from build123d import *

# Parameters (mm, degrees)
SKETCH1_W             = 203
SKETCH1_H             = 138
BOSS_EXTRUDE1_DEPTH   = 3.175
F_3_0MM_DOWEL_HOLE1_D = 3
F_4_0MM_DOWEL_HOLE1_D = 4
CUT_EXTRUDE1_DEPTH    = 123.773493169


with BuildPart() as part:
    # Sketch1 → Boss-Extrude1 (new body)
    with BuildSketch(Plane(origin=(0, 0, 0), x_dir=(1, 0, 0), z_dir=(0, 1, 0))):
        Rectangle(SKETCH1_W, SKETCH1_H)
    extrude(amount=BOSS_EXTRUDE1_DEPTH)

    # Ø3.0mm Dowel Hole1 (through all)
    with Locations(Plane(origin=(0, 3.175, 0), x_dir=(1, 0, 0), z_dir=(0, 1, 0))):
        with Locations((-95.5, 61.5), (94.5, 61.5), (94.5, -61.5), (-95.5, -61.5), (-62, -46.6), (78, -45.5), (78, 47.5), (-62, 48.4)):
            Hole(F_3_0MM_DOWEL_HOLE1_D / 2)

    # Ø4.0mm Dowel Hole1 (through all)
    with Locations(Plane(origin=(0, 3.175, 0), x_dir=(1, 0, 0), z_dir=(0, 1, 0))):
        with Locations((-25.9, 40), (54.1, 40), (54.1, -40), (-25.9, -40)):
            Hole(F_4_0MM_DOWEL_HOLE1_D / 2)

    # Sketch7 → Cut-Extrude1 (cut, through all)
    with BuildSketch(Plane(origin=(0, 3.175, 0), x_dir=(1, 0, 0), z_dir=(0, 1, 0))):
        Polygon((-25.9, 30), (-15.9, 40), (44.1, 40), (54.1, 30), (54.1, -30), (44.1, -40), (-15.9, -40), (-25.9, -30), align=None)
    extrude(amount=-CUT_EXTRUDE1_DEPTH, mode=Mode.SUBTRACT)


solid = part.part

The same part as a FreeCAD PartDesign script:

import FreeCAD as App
import Part
import Sketcher
from FreeCAD import Vector
Q = App.Units.Quantity


def add_polygon(sketch, points):
    """Adds a closed chain of lines whose ends are joined by coincident constraints."""
    first, n = sketch.GeometryCount, len(points)
    for a, b in zip(points, points[1:] + points[:1]):
        sketch.addGeometry(Part.LineSegment(App.Vector(*a, 0), App.Vector(*b, 0)), False)
    for i in range(n):
        sketch.addConstraint(Sketcher.Constraint("Coincident", first + i, 2, first + (i + 1) % n, 1))

doc = App.newDocument("Part")
body = doc.addObject("PartDesign::Body", "Body")

sketch1 = doc.addObject("Sketcher::SketchObject", "Sketch")
body.addObject(sketch1)
sketch1.AttachmentSupport = (doc.XZ_Plane, [""])
sketch1.MapMode = "FlatFace"
add_polygon(sketch1, [(-102, -69), (-102, 69), (102, 69), (102, -69)])
sketch1.addConstraint(Sketcher.Constraint("Vertical", 0))
sketch1.addConstraint(Sketcher.Constraint("Horizontal", 1))
sketch1.addConstraint(Sketcher.Constraint("Vertical", 2))
sketch1.addConstraint(Sketcher.Constraint("Horizontal", 3))
sketch1.addConstraint(Sketcher.Constraint("Symmetric", 0, 2, 2, 2, -1, 1))
sketch1.addConstraint(Sketcher.Constraint("DistanceX", 1, 1, 1, 2, Q("203 mm")))
sketch1.addConstraint(Sketcher.Constraint("DistanceY", 0, 1, 0, 2, Q("138 mm")))
pad1 = doc.addObject("PartDesign::Pad", "Pad")
body.addObject(pad1)
pad1.Profile = sketch1
pad1.Length = 3.175
pad1.Reversed = True

sketch2 = doc.addObject("Sketcher::SketchObject", "Sketch001")
body.addObject(sketch2)
sketch2.AttachmentSupport = (doc.XZ_Plane, [""])
sketch2.MapMode = "FlatFace"
sketch2.AttachmentOffset = App.Placement(Vector(0, 0, -3.175), App.Rotation())
sketch2.addGeometry(Part.Circle(Vector(-95.5, -61.5, 0), Vector(0, 0, 1), 1.5), False)
sketch2.addGeometry(Part.Circle(Vector(94.5, -61.5, 0), Vector(0, 0, 1), 1.5), False)
sketch2.addGeometry(Part.Circle(Vector(94.5, 61.5, 0), Vector(0, 0, 1), 1.5), False)
sketch2.addGeometry(Part.Circle(Vector(-95.5, 61.5, 0), Vector(0, 0, 1), 1.5), False)
sketch2.addGeometry(Part.Circle(Vector(-62, 46.6, 0), Vector(0, 0, 1), 1.5), False)
sketch2.addGeometry(Part.Circle(Vector(78, 45.5, 0), Vector(0, 0, 1), 1.5), False)
sketch2.addGeometry(Part.Circle(Vector(78, -47.5, 0), Vector(0, 0, 1), 1.5), False)
sketch2.addGeometry(Part.Circle(Vector(-62, -48.4, 0), Vector(0, 0, 1), 1.5), False)
sketch2.addConstraint(Sketcher.Constraint("Equal", 0, 1))
sketch2.addConstraint(Sketcher.Constraint("Equal", 1, 2))
sketch2.addConstraint(Sketcher.Constraint("Equal", 2, 3))
sketch2.addConstraint(Sketcher.Constraint("Equal", 3, 4))
sketch2.addConstraint(Sketcher.Constraint("Equal", 4, 5))
sketch2.addConstraint(Sketcher.Constraint("Equal", 5, 6))
sketch2.addConstraint(Sketcher.Constraint("Equal", 6, 7))
sketch2.addConstraint(Sketcher.Constraint("Symmetric", 1, 3, 2, 3, -1))
sketch2.addConstraint(Sketcher.Constraint("Symmetric", 0, 3, 3, 3, -1))
sketch2.addConstraint(Sketcher.Constraint("Horizontal", 0, 3, 1, 3))
sketch2.addConstraint(Sketcher.Constraint("Vertical", 5, 3, 6, 3))
sketch2.addConstraint(Sketcher.Constraint("Vertical", 4, 3, 7, 3))
sketch2.addConstraint(Sketcher.Constraint("Diameter", 0, Q("3 mm")))
sketch2.addConstraint(Sketcher.Constraint("DistanceX", 4, 3, -1, 1, Q("62 mm")))
sketch2.addConstraint(Sketcher.Constraint("DistanceX", -1, 1, 5, 3, Q("78 mm")))
sketch2.addConstraint(Sketcher.Constraint("DistanceX", 0, 3, 1, 3, Q("190 mm")))
sketch2.addConstraint(Sketcher.Constraint("DistanceY", 1, 3, 2, 3, Q("123 mm")))
sketch2.addConstraint(Sketcher.Constraint("DistanceY", 5, 3, 2, 3, Q("16 mm")))
sketch2.addConstraint(Sketcher.Constraint("DistanceY", 1, 3, 6, 3, Q("14 mm")))
sketch2.addConstraint(Sketcher.Constraint("DistanceY", 7, 3, 4, 3, Q("95 mm")))
sketch2.addConstraint(Sketcher.Constraint("DistanceX", 0, 3, -1, 1, Q("95.5 mm")))
sketch2.addConstraint(Sketcher.Constraint("DistanceY", -1, 1, 4, 3, Q("46.6 mm")))
doc.recompute()
hole = doc.addObject("PartDesign::Hole", "Hole")
body.addObject(hole)
hole.Profile = sketch2
hole.ThreadType = "None"
hole.Diameter = 3
hole.DepthType = "ThroughAll"
hole.Reversed = True

sketch3 = doc.addObject("Sketcher::SketchObject", "Sketch002")
body.addObject(sketch3)
sketch3.AttachmentSupport = (doc.XZ_Plane, [""])
sketch3.MapMode = "FlatFace"
sketch3.AttachmentOffset = App.Placement(Vector(0, 0, -3.175), App.Rotation())
sketch3.addGeometry(Part.Circle(Vector(-25.9, -40, 0), Vector(0, 0, 1), 2), False)
sketch3.addGeometry(Part.Circle(Vector(54.1, -40, 0), Vector(0, 0, 1), 2), False)
sketch3.addGeometry(Part.Circle(Vector(54.1, 40, 0), Vector(0, 0, 1), 2), False)
sketch3.addGeometry(Part.Circle(Vector(-25.9, 40, 0), Vector(0, 0, 1), 2), False)
sketch3.addConstraint(Sketcher.Constraint("Equal", 0, 1))
sketch3.addConstraint(Sketcher.Constraint("Equal", 1, 2))
sketch3.addConstraint(Sketcher.Constraint("Equal", 2, 3))
sketch3.addConstraint(Sketcher.Constraint("Symmetric", 1, 3, 2, 3, -1))
sketch3.addConstraint(Sketcher.Constraint("Symmetric", 0, 3, 3, 3, -1))
sketch3.addConstraint(Sketcher.Constraint("Horizontal", 0, 3, 1, 3))
sketch3.addConstraint(Sketcher.Constraint("Diameter", 0, Q("4 mm")))
sketch3.addConstraint(Sketcher.Constraint("DistanceY", 0, 3, -1, 1, Q("40 mm")))
sketch3.addConstraint(Sketcher.Constraint("DistanceX", 0, 3, 1, 3, Q("80 mm")))
sketch3.addConstraint(Sketcher.Constraint("DistanceX", 0, 3, -1, 1, Q("25.9 mm")))
doc.recompute()
hole2 = doc.addObject("PartDesign::Hole", "Hole001")
body.addObject(hole2)
hole2.Profile = sketch3
hole2.ThreadType = "None"
hole2.Diameter = 4
hole2.DepthType = "ThroughAll"
hole2.Reversed = True

sketch4 = doc.addObject("Sketcher::SketchObject", "Sketch003")
body.addObject(sketch4)
sketch4.AttachmentSupport = (doc.XZ_Plane, [""])
sketch4.MapMode = "FlatFace"
sketch4.AttachmentOffset = App.Placement(Vector(0, 0, -3.175), App.Rotation())
add_polygon(sketch4, [(-16, -40), (-26, -30), (-26, 30), (-16, 40), (44, 40), (54, 30), (54, -30), (44, -40)])
sketch4.addConstraint(Sketcher.Constraint("Vertical", 1))
sketch4.addConstraint(Sketcher.Constraint("Horizontal", 3))
sketch4.addConstraint(Sketcher.Constraint("Vertical", 5))
sketch4.addConstraint(Sketcher.Constraint("Horizontal", 7))
sketch4.addConstraint(Sketcher.Constraint("Symmetric", 3, 2, 6, 2, -1))
sketch4.addConstraint(Sketcher.Constraint("Perpendicular", 0, 2))
sketch4.addConstraint(Sketcher.Constraint("Perpendicular", 2, 4))
sketch4.addConstraint(Sketcher.Constraint("Perpendicular", 4, 6))
sketch4.addConstraint(Sketcher.Constraint("Horizontal", 1, 2, 4, 2))
sketch4.addConstraint(Sketcher.Constraint("Horizontal", 0, 2, 5, 2))
sketch4.addConstraint(Sketcher.Constraint("Vertical", 2, 2, 7, 2))
sketch4.addConstraint(Sketcher.Constraint("Equal", 7, 1))
sketch4.addConstraint(Sketcher.Constraint("DistanceX", 3, 1, 3, 2, Q("60 mm")))
sketch4.addConstraint(Sketcher.Constraint("DistanceY", -1, 1, 2, 2, Q("40 mm")))
sketch4.addConstraint(Sketcher.Constraint("DistanceX", 0, 2, -1, 1, Q("25.9 mm")))
pocket1 = doc.addObject("PartDesign::Pocket", "Pocket")
body.addObject(pocket1)
pocket1.Profile = sketch4
pocket1.Type = "ThroughAll"
pocket1.Reversed = True

doc.recompute()
